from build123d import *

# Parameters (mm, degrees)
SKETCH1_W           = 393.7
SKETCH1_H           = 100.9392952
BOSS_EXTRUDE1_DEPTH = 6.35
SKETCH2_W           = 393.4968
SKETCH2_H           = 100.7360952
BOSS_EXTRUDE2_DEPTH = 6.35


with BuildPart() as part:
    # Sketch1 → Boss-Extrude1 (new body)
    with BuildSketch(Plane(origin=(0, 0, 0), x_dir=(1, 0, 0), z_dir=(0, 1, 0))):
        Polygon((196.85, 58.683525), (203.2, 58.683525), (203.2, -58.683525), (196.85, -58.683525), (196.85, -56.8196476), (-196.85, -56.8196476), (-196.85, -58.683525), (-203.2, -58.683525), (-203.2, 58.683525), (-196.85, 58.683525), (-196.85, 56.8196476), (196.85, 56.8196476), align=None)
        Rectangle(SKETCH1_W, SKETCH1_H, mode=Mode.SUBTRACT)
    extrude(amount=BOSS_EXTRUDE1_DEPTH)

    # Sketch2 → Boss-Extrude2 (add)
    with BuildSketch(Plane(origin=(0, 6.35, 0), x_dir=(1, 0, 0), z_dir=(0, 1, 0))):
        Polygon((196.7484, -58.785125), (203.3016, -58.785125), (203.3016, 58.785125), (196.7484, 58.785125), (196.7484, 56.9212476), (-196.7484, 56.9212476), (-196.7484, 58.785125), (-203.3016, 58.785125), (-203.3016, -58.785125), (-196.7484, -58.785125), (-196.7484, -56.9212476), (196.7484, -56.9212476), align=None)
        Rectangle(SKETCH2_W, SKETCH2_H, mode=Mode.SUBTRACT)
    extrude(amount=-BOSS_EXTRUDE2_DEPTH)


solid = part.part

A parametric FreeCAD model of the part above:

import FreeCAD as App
import Part
import Sketcher
Q = App.Units.Quantity

doc = App.newDocument("Part")
body = doc.addObject("PartDesign::Body", "Body")

# Sketch on XZ plane
sketch1 = doc.addObject("Sketcher::SketchObject", "Sketch")
body.addObject(sketch1)
sketch1.AttachmentSupport = (doc.XZ_Plane, [""])
sketch1.MapMode = "FlatFace"
sketch1.addGeometry(Part.LineSegment(App.Vector(203.2, -58.683525, 0), App.Vector(196.85, -58.683525, 0)), False)
sketch1.addGeometry(Part.LineSegment(App.Vector(196.85, -58.683525, 0), App.Vector(196.85, -56.819648, 0)), False)
sketch1.addGeometry(Part.LineSegment(App.Vector(196.85, -56.819648, 0), App.Vector(-196.85, -56.819648, 0)), False)
sketch1.addGeometry(Part.LineSegment(App.Vector(-196.85, -56.819648, 0), App.Vector(-196.85, -58.683525, 0)), False)
sketch1.addGeometry(Part.LineSegment(App.Vector(-196.85, -58.683525, 0), App.Vector(-203.2, -58.683525, 0)), False)
sketch1.addGeometry(Part.LineSegment(App.Vector(-203.2, -58.683525, 0), App.Vector(-203.2, 58.683525, 0)), False)
sketch1.addGeometry(Part.LineSegment(App.Vector(-203.2, 58.683525, 0), App.Vector(-196.85, 58.683525, 0)), False)
sketch1.addGeometry(Part.LineSegment(App.Vector(-196.85, 58.683525, 0), App.Vector(-196.85, 56.819648, 0)), False)
sketch1.addGeometry(Part.LineSegment(App.Vector(-196.85, 56.819648, 0), App.Vector(196.85, 56.819648, 0)), False)
sketch1.addGeometry(Part.LineSegment(App.Vector(196.85, 56.819648, 0), App.Vector(196.85, 58.683525, 0)), False)
sketch1.addGeometry(Part.LineSegment(App.Vector(196.85, 58.683525, 0), App.Vector(203.2, 58.683525, 0)), False)
sketch1.addGeometry(Part.LineSegment(App.Vector(203.2, 58.683525, 0), App.Vector(203.2, -58.683525, 0)), False)
sketch1.addGeometry(Part.LineSegment(App.Vector(-196.85, 50.469648, 0), App.Vector(-196.85, -50.469648, 0)), False)
sketch1.addGeometry(Part.LineSegment(App.Vector(-196.85, -50.469648, 0), App.Vector(196.85, -50.469648, 0)), False)
sketch1.addGeometry(Part.LineSegment(App.Vector(196.85, -50.469648, 0), App.Vector(196.85, 50.469648, 0)), False)
sketch1.addGeometry(Part.LineSegment(App.Vector(196.85, 50.469648, 0), App.Vector(-196.85, 50.469648, 0)), False)
sketch1.addConstraint(Sketcher.Constraint("Coincident", 0, 2, 1, 1))
sketch1.addConstraint(Sketcher.Constraint("Coincident", 1, 2, 2, 1))
sketch1.addConstraint(Sketcher.Constraint("Coincident", 2, 2, 3, 1))
sketch1.addConstraint(Sketcher.Constraint("Coincident", 3, 2, 4, 1))
sketch1.addConstraint(Sketcher.Constraint("Coincident", 4, 2, 5, 1))
sketch1.addConstraint(Sketcher.Constraint("Coincident", 5, 2, 6, 1))
sketch1.addConstraint(Sketcher.Constraint("Coincident", 6, 2, 7, 1))
sketch1.addConstraint(Sketcher.Constraint("Coincident", 7, 2, 8, 1))
sketch1.addConstraint(Sketcher.Constraint("Coincident", 8, 2, 9, 1))
sketch1.addConstraint(Sketcher.Constraint("Coincident", 9, 2, 10, 1))
sketch1.addConstraint(Sketcher.Constraint("Coincident", 10, 2, 11, 1))
sketch1.addConstraint(Sketcher.Constraint("Coincident", 11, 2, 0, 1))
sketch1.addConstraint(Sketcher.Constraint("Coincident", 12, 2, 13, 1))
sketch1.addConstraint(Sketcher.Constraint("Coincident", 13, 2, 14, 1))
sketch1.addConstraint(Sketcher.Constraint("Coincident", 14, 2, 15, 1))
sketch1.addConstraint(Sketcher.Constraint("Coincident", 15, 2, 12, 1))
sketch1.addConstraint(Sketcher.Constraint("Horizontal", 0))
sketch1.addConstraint(Sketcher.Constraint("Vertical", 1))
sketch1.addConstraint(Sketcher.Constraint("Horizontal", 2))
sketch1.addConstraint(Sketcher.Constraint("Vertical", 3))
sketch1.addConstraint(Sketcher.Constraint("Horizontal", 4))
sketch1.addConstraint(Sketcher.Constraint("Vertical", 5))
sketch1.addConstraint(Sketcher.Constraint("Horizontal", 6))
sketch1.addConstraint(Sketcher.Constraint("Vertical", 7))
sketch1.addConstraint(Sketcher.Constraint("Horizontal", 8))
sketch1.addConstraint(Sketcher.Constraint("Vertical", 9))
sketch1.addConstraint(Sketcher.Constraint("Horizontal", 10))
sketch1.addConstraint(Sketcher.Constraint("Vertical", 11))
sketch1.addConstraint(Sketcher.Constraint("Vertical", 12))
sketch1.addConstraint(Sketcher.Constraint("Horizontal", 13))
sketch1.addConstraint(Sketcher.Constraint("Vertical", 14))
sketch1.addConstraint(Sketcher.Constraint("Horizontal", 15))
sketch1.addConstraint(Sketcher.Constraint("Symmetric", 0, 2, 6, 2, -1, 1))
sketch1.addConstraint(Sketcher.Constraint("Symmetric", 2, 2, 8, 2, -1, 1))
sketch1.addConstraint(Sketcher.Constraint("Symmetric", 4, 2, 10, 2, -1, 1))
sketch1.addConstraint(Sketcher.Constraint("Symmetric", 12, 2, 14, 2, -1, 1))
sketch1.addConstraint(Sketcher.Constraint("Symmetric", 0, 2, 3, 2, -2))
sketch1.addConstraint(Sketcher.Constraint("Vertical", 7, 2, 12, 2))
sketch1.addConstraint(Sketcher.Constraint("DistanceX", 2, 2, 2, 1, Q("15.5 in")))
sketch1.addConstraint(Sketcher.Constraint("DistanceX", 4, 2, -1, 1, Q("8 in")))
sketch1.addConstraint(Sketcher.Constraint("DistanceY", 2, 2, 12, 2, Q("0.25 in")))
sketch1.addConstraint(Sketcher.Constraint("DistanceY", 5, 1, 5, 2, 117.36705))
sketch1.addConstraint(Sketcher.Constraint("DistanceY", 1, 1, 1, 2, 1.863877))
pad1 = doc.addObject("PartDesign::Pad", "Pad")
body.addObject(pad1)
pad1.Profile = sketch1
pad1.Length = Q("0.25 in")
pad1.Reversed = True

# Sketch on XZ plane
sketch2 = doc.addObject("Sketcher::SketchObject", "Sketch001")
body.addObject(sketch2)
sketch2.AttachmentSupport = (doc.XZ_Plane, [""])
sketch2.MapMode = "FlatFace"
sketch2.AttachmentOffset = App.Placement(App.Vector(0, 0, -0.25 * 25.4), App.Rotation())
sketch2.addGeometry(Part.LineSegment(App.Vector(196.7484, 58.785125, 0), App.Vector(203.3016, 58.785125, 0)), False)
sketch2.addGeometry(Part.LineSegment(App.Vector(203.3016, 58.785125, 0), App.Vector(203.3016, -58.785125, 0)), False)
sketch2.addGeometry(Part.LineSegment(App.Vector(203.3016, -58.785125, 0), App.Vector(196.7484, -58.785125, 0)), False)
sketch2.addGeometry(Part.LineSegment(App.Vector(196.7484, -58.785125, 0), App.Vector(196.7484, -56.921248, 0)), False)
sketch2.addGeometry(Part.LineSegment(App.Vector(196.7484, -56.921248, 0), App.Vector(-196.7484, -56.921248, 0)), False)
sketch2.addGeometry(Part.LineSegment(App.Vector(-196.7484, -56.921248, 0), App.Vector(-196.7484, -58.785125, 0)), False)
sketch2.addGeometry(Part.LineSegment(App.Vector(-196.7484, -58.785125, 0), App.Vector(-203.3016, -58.785125, 0)), False)
sketch2.addGeometry(Part.LineSegment(App.Vector(-203.3016, -58.785125, 0), App.Vector(-203.3016, 58.785125, 0)), False)
sketch2.addGeometry(Part.LineSegment(App.Vector(-203.3016, 58.785125, 0), App.Vector(-196.7484, 58.785125, 0)), False)
sketch2.addGeometry(Part.LineSegment(App.Vector(-196.7484, 58.785125, 0), App.Vector(-196.7484, 56.921248, 0)), False)
sketch2.addGeometry(Part.LineSegment(App.Vector(-196.7484, 56.921248, 0), App.Vector(196.7484, 56.921248, 0)), False)
sketch2.addGeometry(Part.LineSegment(App.Vector(196.7484, 56.921248, 0), App.Vector(196.7484, 58.785125, 0)), False)
sketch2.addGeometry(Part.LineSegment(App.Vector(196.7484, 50.368048, 0), App.Vector(-196.7484, 50.368048, 0)), False)
sketch2.addGeometry(Part.LineSegment(App.Vector(-196.7484, 50.368048, 0), App.Vector(-196.7484, -50.368048, 0)), False)
sketch2.addGeometry(Part.LineSegment(App.Vector(-196.7484, -50.368048, 0), App.Vector(196.7484, -50.368048, 0)), False)
sketch2.addGeometry(Part.LineSegment(App.Vector(196.7484, -50.368048, 0), App.Vector(196.7484, 50.368048, 0)), False)
sketch2.addConstraint(Sketcher.Constraint("Coincident", 0, 2, 1, 1))
sketch2.addConstraint(Sketcher.Constraint("Coincident", 1, 2, 2, 1))
sketch2.addConstraint(Sketcher.Constraint("Coincident", 2, 2, 3, 1))
sketch2.addConstraint(Sketcher.Constraint("Coincident", 3, 2, 4, 1))
sketch2.addConstraint(Sketcher.Constraint("Coincident", 4, 2, 5, 1))
sketch2.addConstraint(Sketcher.Constraint("Coincident", 5, 2, 6, 1))
sketch2.addConstraint(Sketcher.Constraint("Coincident", 6, 2, 7, 1))
sketch2.addConstraint(Sketcher.Constraint("Coincident", 7, 2, 8, 1))
sketch2.addConstraint(Sketcher.Constraint("Coincident", 8, 2, 9, 1))
sketch2.addConstraint(Sketcher.Constraint("Coincident", 9, 2, 10, 1))
sketch2.addConstraint(Sketcher.Constraint("Coincident", 10, 2, 11, 1))
sketch2.addConstraint(Sketcher.Constraint("Coincident", 11, 2, 0, 1))
sketch2.addConstraint(Sketcher.Constraint("Coincident", 12, 2, 13, 1))
sketch2.addConstraint(Sketcher.Constraint("Coincident", 13, 2, 14, 1))
sketch2.addConstraint(Sketcher.Constraint("Coincident", 14, 2, 15, 1))
sketch2.addConstraint(Sketcher.Constraint("Coincident", 15, 2, 12, 1))
sketch2.addConstraint(Sketcher.Constraint("Horizontal", 0))
sketch2.addConstraint(Sketcher.Constraint("Vertical", 1))
sketch2.addConstraint(Sketcher.Constraint("Horizontal", 2))
sketch2.addConstraint(Sketcher.Constraint("Vertical", 3))
sketch2.addConstraint(Sketcher.Constraint("Horizontal", 4))
sketch2.addConstraint(Sketcher.Constraint("Vertical", 5))
sketch2.addConstraint(Sketcher.Constraint("Horizontal", 6))
sketch2.addConstraint(Sketcher.Constraint("Vertical", 7))
sketch2.addConstraint(Sketcher.Constraint("Horizontal", 8))
sketch2.addConstraint(Sketcher.Constraint("Vertical", 9))
sketch2.addConstraint(Sketcher.Constraint("Horizontal", 10))
sketch2.addConstraint(Sketcher.Constraint("Vertical", 11))
sketch2.addConstraint(Sketcher.Constraint("Horizontal", 12))
sketch2.addConstraint(Sketcher.Constraint("Vertical", 13))
sketch2.addConstraint(Sketcher.Constraint("Horizontal", 14))
sketch2.addConstraint(Sketcher.Constraint("Vertical", 15))
sketch2.addConstraint(Sketcher.Constraint("Symmetric", 0, 2, 6, 2, -1, 1))
sketch2.addConstraint(Sketcher.Constraint("Symmetric", 2, 2, 8, 2, -1, 1))
sketch2.addConstraint(Sketcher.Constraint("Symmetric", 4, 2, 10, 2, -1, 1))
sketch2.addConstraint(Sketcher.Constraint("Symmetric", 12, 2, 14, 2, -1, 1))
sketch2.addConstraint(Sketcher.Constraint("Symmetric", 2, 2, 5, 2, -2))
sketch2.addConstraint(Sketcher.Constraint("Vertical", 9, 2, 12, 2))
sketch2.addConstraint(Sketcher.Constraint("DistanceX", 0, 1, 0, 2, Q("0.258 in")))
sketch2.addConstraint(Sketcher.Constraint("DistanceX", 4, 2, 4, 1, Q("15.492 in")))
sketch2.addConstraint(Sketcher.Constraint("DistanceY", 12, 2, 9, 2, Q("0.258 in")))
sketch2.addConstraint(Sketcher.Constraint("DistanceY", 1, 2, 1, 1, 117.57025))
sketch2.addConstraint(Sketcher.Constraint("DistanceY", 3, 1, 3, 2, 1.863877))
pad2 = doc.addObject("PartDesign::Pad", "Pad001")
body.addObject(pad2)
pad2.Profile = sketch2
pad2.Length = Q("0.25 in")

doc.recompute()
